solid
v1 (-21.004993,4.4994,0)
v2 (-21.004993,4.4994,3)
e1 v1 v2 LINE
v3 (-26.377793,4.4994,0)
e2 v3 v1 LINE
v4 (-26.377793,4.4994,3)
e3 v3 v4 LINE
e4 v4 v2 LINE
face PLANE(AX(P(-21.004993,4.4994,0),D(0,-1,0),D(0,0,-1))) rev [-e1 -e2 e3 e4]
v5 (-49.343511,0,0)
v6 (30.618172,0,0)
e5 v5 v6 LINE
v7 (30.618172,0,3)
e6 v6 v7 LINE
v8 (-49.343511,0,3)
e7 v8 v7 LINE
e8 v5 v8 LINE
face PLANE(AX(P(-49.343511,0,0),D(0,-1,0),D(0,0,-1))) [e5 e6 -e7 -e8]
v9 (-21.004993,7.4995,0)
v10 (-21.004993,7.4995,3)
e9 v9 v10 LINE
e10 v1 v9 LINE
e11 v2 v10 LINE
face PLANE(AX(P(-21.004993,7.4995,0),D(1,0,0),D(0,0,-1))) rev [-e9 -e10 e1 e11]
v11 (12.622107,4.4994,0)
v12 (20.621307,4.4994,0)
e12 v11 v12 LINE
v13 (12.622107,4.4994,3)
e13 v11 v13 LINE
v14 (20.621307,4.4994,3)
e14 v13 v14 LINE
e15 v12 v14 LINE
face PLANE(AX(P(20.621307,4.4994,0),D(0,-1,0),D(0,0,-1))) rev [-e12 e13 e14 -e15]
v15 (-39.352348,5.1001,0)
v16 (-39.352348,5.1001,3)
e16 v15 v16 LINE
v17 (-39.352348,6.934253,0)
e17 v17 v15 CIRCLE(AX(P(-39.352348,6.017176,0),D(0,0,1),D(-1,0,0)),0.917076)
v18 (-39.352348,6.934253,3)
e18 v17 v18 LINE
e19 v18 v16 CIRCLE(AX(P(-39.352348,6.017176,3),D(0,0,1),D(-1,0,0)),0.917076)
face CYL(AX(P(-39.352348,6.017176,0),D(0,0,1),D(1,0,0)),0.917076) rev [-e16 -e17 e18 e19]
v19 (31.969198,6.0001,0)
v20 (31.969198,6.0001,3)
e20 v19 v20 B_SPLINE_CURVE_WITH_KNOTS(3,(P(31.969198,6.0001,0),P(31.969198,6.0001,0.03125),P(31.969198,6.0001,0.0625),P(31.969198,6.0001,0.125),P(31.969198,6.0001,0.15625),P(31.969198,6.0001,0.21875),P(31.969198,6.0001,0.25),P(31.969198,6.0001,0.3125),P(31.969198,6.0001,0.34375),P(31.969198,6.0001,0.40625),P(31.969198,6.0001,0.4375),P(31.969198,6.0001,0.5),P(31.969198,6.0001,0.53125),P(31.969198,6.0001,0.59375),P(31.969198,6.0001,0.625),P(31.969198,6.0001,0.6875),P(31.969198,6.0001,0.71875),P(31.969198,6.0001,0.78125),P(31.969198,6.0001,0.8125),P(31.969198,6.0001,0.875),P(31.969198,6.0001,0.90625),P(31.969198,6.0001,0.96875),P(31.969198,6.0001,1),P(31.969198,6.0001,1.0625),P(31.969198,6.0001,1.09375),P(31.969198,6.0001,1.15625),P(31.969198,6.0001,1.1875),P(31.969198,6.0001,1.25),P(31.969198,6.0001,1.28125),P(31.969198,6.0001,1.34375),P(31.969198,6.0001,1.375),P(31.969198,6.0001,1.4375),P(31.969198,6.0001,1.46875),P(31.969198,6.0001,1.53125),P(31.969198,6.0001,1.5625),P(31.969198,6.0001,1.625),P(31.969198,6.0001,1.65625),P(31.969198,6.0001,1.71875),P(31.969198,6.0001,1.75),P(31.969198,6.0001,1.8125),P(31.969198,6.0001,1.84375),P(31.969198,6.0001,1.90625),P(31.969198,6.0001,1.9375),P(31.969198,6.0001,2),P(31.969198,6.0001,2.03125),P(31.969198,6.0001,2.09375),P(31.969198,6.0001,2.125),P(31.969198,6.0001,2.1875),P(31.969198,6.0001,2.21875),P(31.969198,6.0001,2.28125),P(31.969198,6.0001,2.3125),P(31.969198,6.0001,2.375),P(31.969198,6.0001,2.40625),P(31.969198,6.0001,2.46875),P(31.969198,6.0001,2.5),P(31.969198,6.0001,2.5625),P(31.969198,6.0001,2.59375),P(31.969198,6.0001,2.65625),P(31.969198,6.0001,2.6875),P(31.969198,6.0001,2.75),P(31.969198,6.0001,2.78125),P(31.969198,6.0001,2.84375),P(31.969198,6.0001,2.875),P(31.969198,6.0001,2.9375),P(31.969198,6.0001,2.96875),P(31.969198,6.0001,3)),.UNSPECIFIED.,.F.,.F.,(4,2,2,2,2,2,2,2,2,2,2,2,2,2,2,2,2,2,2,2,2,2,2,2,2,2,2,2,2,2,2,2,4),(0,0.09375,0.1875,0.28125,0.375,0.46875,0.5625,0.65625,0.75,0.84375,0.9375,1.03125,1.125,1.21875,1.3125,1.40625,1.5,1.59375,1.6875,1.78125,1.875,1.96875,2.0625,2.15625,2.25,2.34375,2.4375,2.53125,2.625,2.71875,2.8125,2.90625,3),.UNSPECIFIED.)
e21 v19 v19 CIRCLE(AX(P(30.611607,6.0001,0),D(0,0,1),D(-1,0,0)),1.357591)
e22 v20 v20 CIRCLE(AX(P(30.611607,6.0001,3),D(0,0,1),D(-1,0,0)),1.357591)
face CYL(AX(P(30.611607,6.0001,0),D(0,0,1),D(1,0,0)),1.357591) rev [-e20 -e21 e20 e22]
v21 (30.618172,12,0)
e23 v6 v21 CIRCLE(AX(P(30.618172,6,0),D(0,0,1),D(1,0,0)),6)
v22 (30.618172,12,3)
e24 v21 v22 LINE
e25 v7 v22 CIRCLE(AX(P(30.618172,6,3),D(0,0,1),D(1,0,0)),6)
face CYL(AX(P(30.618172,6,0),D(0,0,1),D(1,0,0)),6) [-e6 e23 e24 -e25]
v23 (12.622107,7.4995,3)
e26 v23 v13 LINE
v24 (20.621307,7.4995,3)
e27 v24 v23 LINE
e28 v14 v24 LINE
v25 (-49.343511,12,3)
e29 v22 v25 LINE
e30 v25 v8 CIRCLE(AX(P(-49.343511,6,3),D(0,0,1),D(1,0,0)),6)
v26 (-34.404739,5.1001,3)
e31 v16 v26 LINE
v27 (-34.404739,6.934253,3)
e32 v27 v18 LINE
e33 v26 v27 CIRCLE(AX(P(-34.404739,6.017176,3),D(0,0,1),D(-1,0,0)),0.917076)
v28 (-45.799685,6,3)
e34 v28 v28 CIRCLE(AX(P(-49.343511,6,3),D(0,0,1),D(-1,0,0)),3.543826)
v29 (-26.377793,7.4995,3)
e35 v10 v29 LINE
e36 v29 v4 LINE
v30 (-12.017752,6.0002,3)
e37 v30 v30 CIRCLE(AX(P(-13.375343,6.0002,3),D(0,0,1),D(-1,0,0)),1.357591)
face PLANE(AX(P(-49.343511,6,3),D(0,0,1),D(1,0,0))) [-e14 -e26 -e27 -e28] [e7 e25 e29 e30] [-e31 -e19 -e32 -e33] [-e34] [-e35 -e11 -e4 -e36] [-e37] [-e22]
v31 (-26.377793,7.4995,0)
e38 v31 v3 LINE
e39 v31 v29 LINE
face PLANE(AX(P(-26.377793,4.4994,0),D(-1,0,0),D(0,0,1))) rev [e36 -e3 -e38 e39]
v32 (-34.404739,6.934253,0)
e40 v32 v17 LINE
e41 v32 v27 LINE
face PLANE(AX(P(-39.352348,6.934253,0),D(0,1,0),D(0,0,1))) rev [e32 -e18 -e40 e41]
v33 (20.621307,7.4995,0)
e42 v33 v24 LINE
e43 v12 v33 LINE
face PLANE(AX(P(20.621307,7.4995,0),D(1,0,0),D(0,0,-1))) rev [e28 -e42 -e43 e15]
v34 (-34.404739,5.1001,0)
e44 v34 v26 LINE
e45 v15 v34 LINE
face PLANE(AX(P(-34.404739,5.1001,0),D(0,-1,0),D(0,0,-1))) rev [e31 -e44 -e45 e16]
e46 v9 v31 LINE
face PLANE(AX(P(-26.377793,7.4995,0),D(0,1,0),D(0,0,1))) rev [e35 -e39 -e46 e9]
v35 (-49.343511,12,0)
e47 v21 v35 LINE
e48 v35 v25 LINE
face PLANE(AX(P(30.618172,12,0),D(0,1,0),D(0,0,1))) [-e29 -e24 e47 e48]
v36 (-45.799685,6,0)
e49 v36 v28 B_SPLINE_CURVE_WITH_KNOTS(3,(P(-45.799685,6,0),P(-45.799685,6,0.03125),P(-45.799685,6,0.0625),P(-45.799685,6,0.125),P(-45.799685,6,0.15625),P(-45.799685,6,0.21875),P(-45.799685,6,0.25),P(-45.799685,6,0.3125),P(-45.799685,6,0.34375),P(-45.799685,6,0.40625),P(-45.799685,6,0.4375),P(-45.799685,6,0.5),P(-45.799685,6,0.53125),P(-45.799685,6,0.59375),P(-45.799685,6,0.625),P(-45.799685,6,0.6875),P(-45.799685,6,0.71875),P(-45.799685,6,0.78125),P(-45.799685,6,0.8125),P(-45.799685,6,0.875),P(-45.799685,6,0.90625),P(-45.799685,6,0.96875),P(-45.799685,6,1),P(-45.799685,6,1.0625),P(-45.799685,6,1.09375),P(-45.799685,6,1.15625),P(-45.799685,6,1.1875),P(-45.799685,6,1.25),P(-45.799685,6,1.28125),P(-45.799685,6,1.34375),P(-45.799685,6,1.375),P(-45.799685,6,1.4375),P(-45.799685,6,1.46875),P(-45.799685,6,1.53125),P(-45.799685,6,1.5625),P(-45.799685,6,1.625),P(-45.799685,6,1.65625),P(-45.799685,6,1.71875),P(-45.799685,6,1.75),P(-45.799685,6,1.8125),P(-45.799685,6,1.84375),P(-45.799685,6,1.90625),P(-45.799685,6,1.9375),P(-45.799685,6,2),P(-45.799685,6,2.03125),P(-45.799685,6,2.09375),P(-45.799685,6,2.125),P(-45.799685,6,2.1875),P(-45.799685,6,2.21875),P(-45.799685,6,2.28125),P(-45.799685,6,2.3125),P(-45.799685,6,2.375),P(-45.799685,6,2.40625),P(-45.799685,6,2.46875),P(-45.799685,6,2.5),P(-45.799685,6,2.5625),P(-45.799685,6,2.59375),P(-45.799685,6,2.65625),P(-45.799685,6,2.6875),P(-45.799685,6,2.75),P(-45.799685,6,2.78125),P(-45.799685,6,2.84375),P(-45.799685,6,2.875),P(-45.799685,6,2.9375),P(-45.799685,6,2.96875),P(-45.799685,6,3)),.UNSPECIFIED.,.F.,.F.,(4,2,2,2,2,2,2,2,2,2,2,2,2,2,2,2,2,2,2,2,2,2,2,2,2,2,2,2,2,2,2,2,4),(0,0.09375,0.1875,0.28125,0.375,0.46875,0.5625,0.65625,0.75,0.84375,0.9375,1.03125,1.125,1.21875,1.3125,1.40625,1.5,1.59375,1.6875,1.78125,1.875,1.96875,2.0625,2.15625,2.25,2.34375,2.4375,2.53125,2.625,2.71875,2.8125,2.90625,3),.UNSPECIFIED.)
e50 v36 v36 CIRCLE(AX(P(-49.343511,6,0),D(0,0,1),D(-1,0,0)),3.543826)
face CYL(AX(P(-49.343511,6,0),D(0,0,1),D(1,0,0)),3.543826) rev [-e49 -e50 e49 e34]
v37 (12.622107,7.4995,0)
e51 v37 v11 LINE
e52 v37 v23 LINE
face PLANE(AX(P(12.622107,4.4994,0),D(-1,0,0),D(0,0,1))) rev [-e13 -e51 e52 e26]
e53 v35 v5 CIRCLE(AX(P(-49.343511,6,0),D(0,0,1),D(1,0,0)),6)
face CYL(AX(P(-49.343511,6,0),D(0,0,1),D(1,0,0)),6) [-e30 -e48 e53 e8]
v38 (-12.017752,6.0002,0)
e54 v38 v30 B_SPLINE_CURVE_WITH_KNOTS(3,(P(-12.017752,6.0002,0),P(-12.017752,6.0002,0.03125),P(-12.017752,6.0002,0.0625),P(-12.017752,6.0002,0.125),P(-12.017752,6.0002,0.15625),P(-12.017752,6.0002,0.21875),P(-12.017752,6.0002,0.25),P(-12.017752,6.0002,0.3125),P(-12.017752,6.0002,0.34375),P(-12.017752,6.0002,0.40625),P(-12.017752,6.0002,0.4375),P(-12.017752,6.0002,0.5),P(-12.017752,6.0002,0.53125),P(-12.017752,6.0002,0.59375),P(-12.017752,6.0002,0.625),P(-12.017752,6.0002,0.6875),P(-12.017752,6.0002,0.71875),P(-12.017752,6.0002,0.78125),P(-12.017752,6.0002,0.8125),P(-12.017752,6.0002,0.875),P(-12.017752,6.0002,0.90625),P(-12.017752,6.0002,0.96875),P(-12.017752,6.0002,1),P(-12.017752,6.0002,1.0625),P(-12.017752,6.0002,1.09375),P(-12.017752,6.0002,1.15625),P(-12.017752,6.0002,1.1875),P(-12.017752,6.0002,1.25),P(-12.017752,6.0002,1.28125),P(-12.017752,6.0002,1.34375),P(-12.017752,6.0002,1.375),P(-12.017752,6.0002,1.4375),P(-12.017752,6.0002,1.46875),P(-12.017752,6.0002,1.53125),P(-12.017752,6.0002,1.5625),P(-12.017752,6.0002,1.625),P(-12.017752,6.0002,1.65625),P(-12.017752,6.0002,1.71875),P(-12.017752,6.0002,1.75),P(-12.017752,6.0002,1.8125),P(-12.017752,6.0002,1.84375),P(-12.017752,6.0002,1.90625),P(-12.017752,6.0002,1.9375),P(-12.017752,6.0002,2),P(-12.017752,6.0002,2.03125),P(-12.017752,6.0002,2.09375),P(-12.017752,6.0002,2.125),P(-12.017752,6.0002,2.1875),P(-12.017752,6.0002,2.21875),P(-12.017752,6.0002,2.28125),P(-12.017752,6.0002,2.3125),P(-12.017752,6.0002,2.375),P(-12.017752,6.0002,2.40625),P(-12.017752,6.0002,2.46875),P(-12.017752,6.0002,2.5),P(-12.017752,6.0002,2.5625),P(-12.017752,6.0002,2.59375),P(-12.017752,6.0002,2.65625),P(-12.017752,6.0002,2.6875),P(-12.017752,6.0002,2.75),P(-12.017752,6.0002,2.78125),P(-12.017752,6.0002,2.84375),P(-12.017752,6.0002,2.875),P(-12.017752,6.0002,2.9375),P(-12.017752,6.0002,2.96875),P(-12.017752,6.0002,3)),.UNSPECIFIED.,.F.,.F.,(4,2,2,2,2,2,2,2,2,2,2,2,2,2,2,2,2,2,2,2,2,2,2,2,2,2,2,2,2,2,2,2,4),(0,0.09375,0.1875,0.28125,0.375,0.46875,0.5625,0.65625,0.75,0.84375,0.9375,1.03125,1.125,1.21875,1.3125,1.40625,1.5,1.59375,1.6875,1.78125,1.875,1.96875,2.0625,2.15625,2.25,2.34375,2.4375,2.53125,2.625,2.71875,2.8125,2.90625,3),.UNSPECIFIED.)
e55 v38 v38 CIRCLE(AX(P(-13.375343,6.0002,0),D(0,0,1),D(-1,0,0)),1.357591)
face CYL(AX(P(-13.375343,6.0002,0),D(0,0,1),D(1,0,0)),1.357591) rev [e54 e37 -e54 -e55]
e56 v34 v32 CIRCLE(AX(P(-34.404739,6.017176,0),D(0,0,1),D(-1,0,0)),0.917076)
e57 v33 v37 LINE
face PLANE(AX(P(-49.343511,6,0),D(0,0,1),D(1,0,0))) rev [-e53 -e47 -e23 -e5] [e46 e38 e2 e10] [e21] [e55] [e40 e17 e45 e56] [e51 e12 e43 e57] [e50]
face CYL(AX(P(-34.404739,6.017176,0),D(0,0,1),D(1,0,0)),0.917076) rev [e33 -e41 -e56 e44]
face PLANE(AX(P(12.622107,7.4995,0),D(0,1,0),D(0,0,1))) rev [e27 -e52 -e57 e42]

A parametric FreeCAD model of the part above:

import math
import FreeCAD as App
import Part
import Sketcher

V = App.Vector
Q = App.Units.Quantity

doc = App.newDocument("Part")
params = doc.addObject("Spreadsheet::Sheet", "Params")
for row, (alias, value) in enumerate([
    ("sketch1_radius", "6 mm"),
    ("pad1_length", "3 mm"),
], start=1):
    params.set(f"A{row}", alias)
    params.set(f"B{row}", "=" + value)
    params.setAlias(f"B{row}", alias)

body = doc.addObject("PartDesign::Body", "Body")

# Sketch on XY plane
sketch1 = body.newObject("Sketcher::SketchObject", "Sketch")
sketch1.AttachmentSupport = (doc.getObject("XY_Plane"), [""])
sketch1.MapMode = "FlatFace"
sketch1.AttachmentOffset = App.Placement(V(0, 0, 3), App.Rotation())
sketch1.addGeometry([
    Part.LineSegment(V(-49.3, 0, 0), V(30.6, 0, 0)),  # 0
    Part.ArcOfCircle(Part.Circle(V(30.6, 6, 0), V(0, 0, 1), 6), math.radians(-90), math.radians(90)),  # 1
    Part.LineSegment(V(30.6, 12, 0), V(-49.3, 12, 0)),  # 2
    Part.ArcOfCircle(Part.Circle(V(-49.3, 6, 0), V(0, 0, 1), 6), math.radians(90), math.radians(270)),  # 3
    Part.Circle(V(-49.3, 6, 0), V(0, 0, 1), 3.5),  # 4
    Part.LineSegment(V(-21, 4.5, 0), V(-26.4, 4.5, 0)),  # 5
    Part.LineSegment(V(-26.4, 4.5, 0), V(-26.4, 7.5, 0)),  # 6
    Part.LineSegment(V(-26.4, 7.5, 0), V(-21, 7.5, 0)),  # 7
    Part.LineSegment(V(-21, 7.5, 0), V(-21, 4.5, 0)),  # 8
    Part.LineSegment(V(20.6, 4.5, 0), V(12.6, 4.5, 0)),  # 9
    Part.LineSegment(V(12.6, 4.5, 0), V(12.6, 7.5, 0)),  # 10
    Part.LineSegment(V(12.6, 7.5, 0), V(20.6, 7.5, 0)),  # 11
    Part.LineSegment(V(20.6, 7.5, 0), V(20.6, 4.5, 0)),  # 12
    Part.ArcOfCircle(Part.Circle(V(-39.4, 6, 0), V(0, 0, 1), 0.9), math.radians(90), math.radians(270)),  # 13
    Part.LineSegment(V(-39.4, 6.9, 0), V(-34.4, 6.9, 0)),  # 14
    Part.ArcOfCircle(Part.Circle(V(-34.4, 6, 0), V(0, 0, 1), 0.9), math.radians(-90), math.radians(90)),  # 15
    Part.LineSegment(V(-34.4, 5.1, 0), V(-39.4, 5.1, 0)),  # 16
    Part.Circle(V(-13.4, 6, 0), V(0, 0, 1), 1.4),  # 17
    Part.Circle(V(30.6, 6, 0), V(0, 0, 1), 1.4),  # 18
], False)
sketch1.addConstraint([
    Sketcher.Constraint("Tangent", 0, 2, 1, 1),
    Sketcher.Constraint("Tangent", 1, 2, 2, 1),
    Sketcher.Constraint("Tangent", 2, 2, 3, 1),
    Sketcher.Constraint("Tangent", 3, 2, 0, 1),
    Sketcher.Constraint("Coincident", 5, 2, 6, 1),
    Sketcher.Constraint("Coincident", 6, 2, 7, 1),
    Sketcher.Constraint("Coincident", 7, 2, 8, 1),
    Sketcher.Constraint("Coincident", 8, 2, 5, 1),
    Sketcher.Constraint("Coincident", 9, 2, 10, 1),
    Sketcher.Constraint("Coincident", 10, 2, 11, 1),
    Sketcher.Constraint("Coincident", 11, 2, 12, 1),
    Sketcher.Constraint("Coincident", 12, 2, 9, 1),
    Sketcher.Constraint("Tangent", 13, 1, 14, 1),
    Sketcher.Constraint("Tangent", 14, 2, 15, 2),
    Sketcher.Constraint("Tangent", 15, 1, 16, 1),
    Sketcher.Constraint("Tangent", 16, 2, 13, 2),
    Sketcher.Constraint("Horizontal", 0),
    Sketcher.Constraint("Horizontal", 2),
    Sketcher.Constraint("Horizontal", 5),
    Sketcher.Constraint("Vertical", 6),
    Sketcher.Constraint("Horizontal", 7),
    Sketcher.Constraint("Vertical", 8),
    Sketcher.Constraint("Horizontal", 9),
    Sketcher.Constraint("Vertical", 10),
    Sketcher.Constraint("Horizontal", 11),
    Sketcher.Constraint("Vertical", 12),
    Sketcher.Constraint("Horizontal", 14),
    Sketcher.Constraint("Horizontal", 16),
    Sketcher.Constraint("Coincident", 4, 3, 3, 3),
    Sketcher.Constraint("Equal", 17, 18),
    Sketcher.Constraint("PointOnObject", 0, 2, -1),
    Sketcher.Constraint("Horizontal", 8, 2, 9, 2),
    Sketcher.Constraint("Horizontal", 7, 2, 10, 2),
    Sketcher.Constraint("Radius", 1, Q("6 mm")),
    Sketcher.Constraint("Diameter", 4, Q("7.087652 mm")),
    Sketcher.Constraint("Diameter", 17, Q("2.715182 mm")),
    Sketcher.Constraint("DistanceX", 5, 2, 5, 1, Q("5.3728 mm")),
    Sketcher.Constraint("DistanceX", 9, 2, 9, 1, Q("7.9992 mm")),
    Sketcher.Constraint("DistanceY", 6, 1, 6, 2, Q("3.0001 mm")),
    Sketcher.Constraint("Radius", 13, Q("0.917076 mm")),
    Sketcher.Constraint("DistanceX", 14, 1, 14, 2, Q("4.947608 mm")),
    Sketcher.Constraint("DistanceY", -1, 1, 17, 3, Q("6.0002 mm")),
    Sketcher.Constraint("DistanceY", -1, 1, 18, 3, Q("6.0001 mm")),
    Sketcher.Constraint("DistanceY", -1, 1, 5, 2, Q("4.4994 mm")),
    Sketcher.Constraint("DistanceY", -1, 1, 15, 1, Q("5.1001 mm")),
    Sketcher.Constraint("DistanceX", 9, 2, 18, 3, Q("17.9895 mm")),
    Sketcher.Constraint("DistanceX", 0, 1, 0, 2, Q("79.961683 mm")),
    Sketcher.Constraint("DistanceX", -1, 1, 1, 3, Q("30.618172 mm")),
    Sketcher.Constraint("DistanceX", 15, 3, -1, 1, Q("34.404739 mm")),
    Sketcher.Constraint("DistanceX", 17, 3, 18, 3, Q("43.98695 mm")),
    Sketcher.Constraint("DistanceX", 5, 2, 17, 3, Q("13.00245 mm")),
    Sketcher.Constraint("DistanceX", 17, 3, -1, 1, Q("13.375343 mm")),
])
sketch1.setExpression("Constraints[33]", "Params.sketch1_radius")
pad1 = body.newObject("PartDesign::Pad", "Pad")
pad1.Profile = sketch1
pad1.setExpression("Length", "Params.pad1_length")
pad1.Reversed = True

doc.recompute()
